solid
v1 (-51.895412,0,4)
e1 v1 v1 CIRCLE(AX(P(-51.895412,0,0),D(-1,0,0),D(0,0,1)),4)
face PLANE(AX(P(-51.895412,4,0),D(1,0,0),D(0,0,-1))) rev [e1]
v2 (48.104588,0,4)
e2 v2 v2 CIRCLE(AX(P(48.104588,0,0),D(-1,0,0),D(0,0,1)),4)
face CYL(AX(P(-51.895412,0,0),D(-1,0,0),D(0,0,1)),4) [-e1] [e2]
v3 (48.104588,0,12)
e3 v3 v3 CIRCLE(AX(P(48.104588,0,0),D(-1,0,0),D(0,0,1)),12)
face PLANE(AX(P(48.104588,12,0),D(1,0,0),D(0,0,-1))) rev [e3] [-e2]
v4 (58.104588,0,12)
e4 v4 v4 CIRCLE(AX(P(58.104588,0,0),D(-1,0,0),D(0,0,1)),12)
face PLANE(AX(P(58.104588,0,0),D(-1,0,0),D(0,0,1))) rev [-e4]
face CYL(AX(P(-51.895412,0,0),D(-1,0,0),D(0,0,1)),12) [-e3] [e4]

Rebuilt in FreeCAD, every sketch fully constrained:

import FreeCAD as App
import Part
import Sketcher
Q = App.Units.Quantity


def add_polygon(sketch, points):
    """Adds a closed chain of lines whose ends are joined by coincident constraints."""
    first, n = sketch.GeometryCount, len(points)
    for a, b in zip(points, points[1:] + points[:1]):
        sketch.addGeometry(Part.LineSegment(App.Vector(*a, 0), App.Vector(*b, 0)), False)
    for i in range(n):
        sketch.addConstraint(Sketcher.Constraint("Coincident", first + i, 2, first + (i + 1) % n, 1))

doc = App.newDocument("Part")
body = doc.addObject("PartDesign::Body", "Body")

# Sketch on XY plane
sketch1 = doc.addObject("Sketcher::SketchObject", "Sketch")
body.addObject(sketch1)
sketch1.AttachmentSupport = (doc.XY_Plane, [""])
sketch1.MapMode = "FlatFace"
add_polygon(sketch1, [(58.1, 0), (58.1, 12), (48.1, 12), (48.1, 4), (-51.9, 4), (-51.9, 0)])  # lines 0-5
sketch1.addConstraint([
    Sketcher.Constraint("Vertical", 0),
    Sketcher.Constraint("Horizontal", 1),
    Sketcher.Constraint("Vertical", 2),
    Sketcher.Constraint("Horizontal", 3),
    Sketcher.Constraint("Vertical", 4),
    Sketcher.Constraint("Horizontal", 5),
    Sketcher.Constraint("PointOnObject", 4, 2, -1),
    Sketcher.Constraint("DistanceX", 1, 2, 1, 1, Q("10 mm")),
    Sketcher.Constraint("DistanceX", 3, 2, 3, 1, Q("100 mm")),
    Sketcher.Constraint("DistanceY", 0, 1, 0, 2, Q("12 mm")),
    Sketcher.Constraint("DistanceY", 2, 2, 2, 1, Q("8 mm")),
    Sketcher.Constraint("DistanceX", -1, 1, 0, 2, Q("58.104588 mm")),
])
revolution = doc.addObject("PartDesign::Revolution", "Revolution")
body.addObject(revolution)
revolution.Profile = sketch1
revolution.ReferenceAxis = (sketch1, ["H_Axis"])
revolution.Angle = 360

doc.recompute()
